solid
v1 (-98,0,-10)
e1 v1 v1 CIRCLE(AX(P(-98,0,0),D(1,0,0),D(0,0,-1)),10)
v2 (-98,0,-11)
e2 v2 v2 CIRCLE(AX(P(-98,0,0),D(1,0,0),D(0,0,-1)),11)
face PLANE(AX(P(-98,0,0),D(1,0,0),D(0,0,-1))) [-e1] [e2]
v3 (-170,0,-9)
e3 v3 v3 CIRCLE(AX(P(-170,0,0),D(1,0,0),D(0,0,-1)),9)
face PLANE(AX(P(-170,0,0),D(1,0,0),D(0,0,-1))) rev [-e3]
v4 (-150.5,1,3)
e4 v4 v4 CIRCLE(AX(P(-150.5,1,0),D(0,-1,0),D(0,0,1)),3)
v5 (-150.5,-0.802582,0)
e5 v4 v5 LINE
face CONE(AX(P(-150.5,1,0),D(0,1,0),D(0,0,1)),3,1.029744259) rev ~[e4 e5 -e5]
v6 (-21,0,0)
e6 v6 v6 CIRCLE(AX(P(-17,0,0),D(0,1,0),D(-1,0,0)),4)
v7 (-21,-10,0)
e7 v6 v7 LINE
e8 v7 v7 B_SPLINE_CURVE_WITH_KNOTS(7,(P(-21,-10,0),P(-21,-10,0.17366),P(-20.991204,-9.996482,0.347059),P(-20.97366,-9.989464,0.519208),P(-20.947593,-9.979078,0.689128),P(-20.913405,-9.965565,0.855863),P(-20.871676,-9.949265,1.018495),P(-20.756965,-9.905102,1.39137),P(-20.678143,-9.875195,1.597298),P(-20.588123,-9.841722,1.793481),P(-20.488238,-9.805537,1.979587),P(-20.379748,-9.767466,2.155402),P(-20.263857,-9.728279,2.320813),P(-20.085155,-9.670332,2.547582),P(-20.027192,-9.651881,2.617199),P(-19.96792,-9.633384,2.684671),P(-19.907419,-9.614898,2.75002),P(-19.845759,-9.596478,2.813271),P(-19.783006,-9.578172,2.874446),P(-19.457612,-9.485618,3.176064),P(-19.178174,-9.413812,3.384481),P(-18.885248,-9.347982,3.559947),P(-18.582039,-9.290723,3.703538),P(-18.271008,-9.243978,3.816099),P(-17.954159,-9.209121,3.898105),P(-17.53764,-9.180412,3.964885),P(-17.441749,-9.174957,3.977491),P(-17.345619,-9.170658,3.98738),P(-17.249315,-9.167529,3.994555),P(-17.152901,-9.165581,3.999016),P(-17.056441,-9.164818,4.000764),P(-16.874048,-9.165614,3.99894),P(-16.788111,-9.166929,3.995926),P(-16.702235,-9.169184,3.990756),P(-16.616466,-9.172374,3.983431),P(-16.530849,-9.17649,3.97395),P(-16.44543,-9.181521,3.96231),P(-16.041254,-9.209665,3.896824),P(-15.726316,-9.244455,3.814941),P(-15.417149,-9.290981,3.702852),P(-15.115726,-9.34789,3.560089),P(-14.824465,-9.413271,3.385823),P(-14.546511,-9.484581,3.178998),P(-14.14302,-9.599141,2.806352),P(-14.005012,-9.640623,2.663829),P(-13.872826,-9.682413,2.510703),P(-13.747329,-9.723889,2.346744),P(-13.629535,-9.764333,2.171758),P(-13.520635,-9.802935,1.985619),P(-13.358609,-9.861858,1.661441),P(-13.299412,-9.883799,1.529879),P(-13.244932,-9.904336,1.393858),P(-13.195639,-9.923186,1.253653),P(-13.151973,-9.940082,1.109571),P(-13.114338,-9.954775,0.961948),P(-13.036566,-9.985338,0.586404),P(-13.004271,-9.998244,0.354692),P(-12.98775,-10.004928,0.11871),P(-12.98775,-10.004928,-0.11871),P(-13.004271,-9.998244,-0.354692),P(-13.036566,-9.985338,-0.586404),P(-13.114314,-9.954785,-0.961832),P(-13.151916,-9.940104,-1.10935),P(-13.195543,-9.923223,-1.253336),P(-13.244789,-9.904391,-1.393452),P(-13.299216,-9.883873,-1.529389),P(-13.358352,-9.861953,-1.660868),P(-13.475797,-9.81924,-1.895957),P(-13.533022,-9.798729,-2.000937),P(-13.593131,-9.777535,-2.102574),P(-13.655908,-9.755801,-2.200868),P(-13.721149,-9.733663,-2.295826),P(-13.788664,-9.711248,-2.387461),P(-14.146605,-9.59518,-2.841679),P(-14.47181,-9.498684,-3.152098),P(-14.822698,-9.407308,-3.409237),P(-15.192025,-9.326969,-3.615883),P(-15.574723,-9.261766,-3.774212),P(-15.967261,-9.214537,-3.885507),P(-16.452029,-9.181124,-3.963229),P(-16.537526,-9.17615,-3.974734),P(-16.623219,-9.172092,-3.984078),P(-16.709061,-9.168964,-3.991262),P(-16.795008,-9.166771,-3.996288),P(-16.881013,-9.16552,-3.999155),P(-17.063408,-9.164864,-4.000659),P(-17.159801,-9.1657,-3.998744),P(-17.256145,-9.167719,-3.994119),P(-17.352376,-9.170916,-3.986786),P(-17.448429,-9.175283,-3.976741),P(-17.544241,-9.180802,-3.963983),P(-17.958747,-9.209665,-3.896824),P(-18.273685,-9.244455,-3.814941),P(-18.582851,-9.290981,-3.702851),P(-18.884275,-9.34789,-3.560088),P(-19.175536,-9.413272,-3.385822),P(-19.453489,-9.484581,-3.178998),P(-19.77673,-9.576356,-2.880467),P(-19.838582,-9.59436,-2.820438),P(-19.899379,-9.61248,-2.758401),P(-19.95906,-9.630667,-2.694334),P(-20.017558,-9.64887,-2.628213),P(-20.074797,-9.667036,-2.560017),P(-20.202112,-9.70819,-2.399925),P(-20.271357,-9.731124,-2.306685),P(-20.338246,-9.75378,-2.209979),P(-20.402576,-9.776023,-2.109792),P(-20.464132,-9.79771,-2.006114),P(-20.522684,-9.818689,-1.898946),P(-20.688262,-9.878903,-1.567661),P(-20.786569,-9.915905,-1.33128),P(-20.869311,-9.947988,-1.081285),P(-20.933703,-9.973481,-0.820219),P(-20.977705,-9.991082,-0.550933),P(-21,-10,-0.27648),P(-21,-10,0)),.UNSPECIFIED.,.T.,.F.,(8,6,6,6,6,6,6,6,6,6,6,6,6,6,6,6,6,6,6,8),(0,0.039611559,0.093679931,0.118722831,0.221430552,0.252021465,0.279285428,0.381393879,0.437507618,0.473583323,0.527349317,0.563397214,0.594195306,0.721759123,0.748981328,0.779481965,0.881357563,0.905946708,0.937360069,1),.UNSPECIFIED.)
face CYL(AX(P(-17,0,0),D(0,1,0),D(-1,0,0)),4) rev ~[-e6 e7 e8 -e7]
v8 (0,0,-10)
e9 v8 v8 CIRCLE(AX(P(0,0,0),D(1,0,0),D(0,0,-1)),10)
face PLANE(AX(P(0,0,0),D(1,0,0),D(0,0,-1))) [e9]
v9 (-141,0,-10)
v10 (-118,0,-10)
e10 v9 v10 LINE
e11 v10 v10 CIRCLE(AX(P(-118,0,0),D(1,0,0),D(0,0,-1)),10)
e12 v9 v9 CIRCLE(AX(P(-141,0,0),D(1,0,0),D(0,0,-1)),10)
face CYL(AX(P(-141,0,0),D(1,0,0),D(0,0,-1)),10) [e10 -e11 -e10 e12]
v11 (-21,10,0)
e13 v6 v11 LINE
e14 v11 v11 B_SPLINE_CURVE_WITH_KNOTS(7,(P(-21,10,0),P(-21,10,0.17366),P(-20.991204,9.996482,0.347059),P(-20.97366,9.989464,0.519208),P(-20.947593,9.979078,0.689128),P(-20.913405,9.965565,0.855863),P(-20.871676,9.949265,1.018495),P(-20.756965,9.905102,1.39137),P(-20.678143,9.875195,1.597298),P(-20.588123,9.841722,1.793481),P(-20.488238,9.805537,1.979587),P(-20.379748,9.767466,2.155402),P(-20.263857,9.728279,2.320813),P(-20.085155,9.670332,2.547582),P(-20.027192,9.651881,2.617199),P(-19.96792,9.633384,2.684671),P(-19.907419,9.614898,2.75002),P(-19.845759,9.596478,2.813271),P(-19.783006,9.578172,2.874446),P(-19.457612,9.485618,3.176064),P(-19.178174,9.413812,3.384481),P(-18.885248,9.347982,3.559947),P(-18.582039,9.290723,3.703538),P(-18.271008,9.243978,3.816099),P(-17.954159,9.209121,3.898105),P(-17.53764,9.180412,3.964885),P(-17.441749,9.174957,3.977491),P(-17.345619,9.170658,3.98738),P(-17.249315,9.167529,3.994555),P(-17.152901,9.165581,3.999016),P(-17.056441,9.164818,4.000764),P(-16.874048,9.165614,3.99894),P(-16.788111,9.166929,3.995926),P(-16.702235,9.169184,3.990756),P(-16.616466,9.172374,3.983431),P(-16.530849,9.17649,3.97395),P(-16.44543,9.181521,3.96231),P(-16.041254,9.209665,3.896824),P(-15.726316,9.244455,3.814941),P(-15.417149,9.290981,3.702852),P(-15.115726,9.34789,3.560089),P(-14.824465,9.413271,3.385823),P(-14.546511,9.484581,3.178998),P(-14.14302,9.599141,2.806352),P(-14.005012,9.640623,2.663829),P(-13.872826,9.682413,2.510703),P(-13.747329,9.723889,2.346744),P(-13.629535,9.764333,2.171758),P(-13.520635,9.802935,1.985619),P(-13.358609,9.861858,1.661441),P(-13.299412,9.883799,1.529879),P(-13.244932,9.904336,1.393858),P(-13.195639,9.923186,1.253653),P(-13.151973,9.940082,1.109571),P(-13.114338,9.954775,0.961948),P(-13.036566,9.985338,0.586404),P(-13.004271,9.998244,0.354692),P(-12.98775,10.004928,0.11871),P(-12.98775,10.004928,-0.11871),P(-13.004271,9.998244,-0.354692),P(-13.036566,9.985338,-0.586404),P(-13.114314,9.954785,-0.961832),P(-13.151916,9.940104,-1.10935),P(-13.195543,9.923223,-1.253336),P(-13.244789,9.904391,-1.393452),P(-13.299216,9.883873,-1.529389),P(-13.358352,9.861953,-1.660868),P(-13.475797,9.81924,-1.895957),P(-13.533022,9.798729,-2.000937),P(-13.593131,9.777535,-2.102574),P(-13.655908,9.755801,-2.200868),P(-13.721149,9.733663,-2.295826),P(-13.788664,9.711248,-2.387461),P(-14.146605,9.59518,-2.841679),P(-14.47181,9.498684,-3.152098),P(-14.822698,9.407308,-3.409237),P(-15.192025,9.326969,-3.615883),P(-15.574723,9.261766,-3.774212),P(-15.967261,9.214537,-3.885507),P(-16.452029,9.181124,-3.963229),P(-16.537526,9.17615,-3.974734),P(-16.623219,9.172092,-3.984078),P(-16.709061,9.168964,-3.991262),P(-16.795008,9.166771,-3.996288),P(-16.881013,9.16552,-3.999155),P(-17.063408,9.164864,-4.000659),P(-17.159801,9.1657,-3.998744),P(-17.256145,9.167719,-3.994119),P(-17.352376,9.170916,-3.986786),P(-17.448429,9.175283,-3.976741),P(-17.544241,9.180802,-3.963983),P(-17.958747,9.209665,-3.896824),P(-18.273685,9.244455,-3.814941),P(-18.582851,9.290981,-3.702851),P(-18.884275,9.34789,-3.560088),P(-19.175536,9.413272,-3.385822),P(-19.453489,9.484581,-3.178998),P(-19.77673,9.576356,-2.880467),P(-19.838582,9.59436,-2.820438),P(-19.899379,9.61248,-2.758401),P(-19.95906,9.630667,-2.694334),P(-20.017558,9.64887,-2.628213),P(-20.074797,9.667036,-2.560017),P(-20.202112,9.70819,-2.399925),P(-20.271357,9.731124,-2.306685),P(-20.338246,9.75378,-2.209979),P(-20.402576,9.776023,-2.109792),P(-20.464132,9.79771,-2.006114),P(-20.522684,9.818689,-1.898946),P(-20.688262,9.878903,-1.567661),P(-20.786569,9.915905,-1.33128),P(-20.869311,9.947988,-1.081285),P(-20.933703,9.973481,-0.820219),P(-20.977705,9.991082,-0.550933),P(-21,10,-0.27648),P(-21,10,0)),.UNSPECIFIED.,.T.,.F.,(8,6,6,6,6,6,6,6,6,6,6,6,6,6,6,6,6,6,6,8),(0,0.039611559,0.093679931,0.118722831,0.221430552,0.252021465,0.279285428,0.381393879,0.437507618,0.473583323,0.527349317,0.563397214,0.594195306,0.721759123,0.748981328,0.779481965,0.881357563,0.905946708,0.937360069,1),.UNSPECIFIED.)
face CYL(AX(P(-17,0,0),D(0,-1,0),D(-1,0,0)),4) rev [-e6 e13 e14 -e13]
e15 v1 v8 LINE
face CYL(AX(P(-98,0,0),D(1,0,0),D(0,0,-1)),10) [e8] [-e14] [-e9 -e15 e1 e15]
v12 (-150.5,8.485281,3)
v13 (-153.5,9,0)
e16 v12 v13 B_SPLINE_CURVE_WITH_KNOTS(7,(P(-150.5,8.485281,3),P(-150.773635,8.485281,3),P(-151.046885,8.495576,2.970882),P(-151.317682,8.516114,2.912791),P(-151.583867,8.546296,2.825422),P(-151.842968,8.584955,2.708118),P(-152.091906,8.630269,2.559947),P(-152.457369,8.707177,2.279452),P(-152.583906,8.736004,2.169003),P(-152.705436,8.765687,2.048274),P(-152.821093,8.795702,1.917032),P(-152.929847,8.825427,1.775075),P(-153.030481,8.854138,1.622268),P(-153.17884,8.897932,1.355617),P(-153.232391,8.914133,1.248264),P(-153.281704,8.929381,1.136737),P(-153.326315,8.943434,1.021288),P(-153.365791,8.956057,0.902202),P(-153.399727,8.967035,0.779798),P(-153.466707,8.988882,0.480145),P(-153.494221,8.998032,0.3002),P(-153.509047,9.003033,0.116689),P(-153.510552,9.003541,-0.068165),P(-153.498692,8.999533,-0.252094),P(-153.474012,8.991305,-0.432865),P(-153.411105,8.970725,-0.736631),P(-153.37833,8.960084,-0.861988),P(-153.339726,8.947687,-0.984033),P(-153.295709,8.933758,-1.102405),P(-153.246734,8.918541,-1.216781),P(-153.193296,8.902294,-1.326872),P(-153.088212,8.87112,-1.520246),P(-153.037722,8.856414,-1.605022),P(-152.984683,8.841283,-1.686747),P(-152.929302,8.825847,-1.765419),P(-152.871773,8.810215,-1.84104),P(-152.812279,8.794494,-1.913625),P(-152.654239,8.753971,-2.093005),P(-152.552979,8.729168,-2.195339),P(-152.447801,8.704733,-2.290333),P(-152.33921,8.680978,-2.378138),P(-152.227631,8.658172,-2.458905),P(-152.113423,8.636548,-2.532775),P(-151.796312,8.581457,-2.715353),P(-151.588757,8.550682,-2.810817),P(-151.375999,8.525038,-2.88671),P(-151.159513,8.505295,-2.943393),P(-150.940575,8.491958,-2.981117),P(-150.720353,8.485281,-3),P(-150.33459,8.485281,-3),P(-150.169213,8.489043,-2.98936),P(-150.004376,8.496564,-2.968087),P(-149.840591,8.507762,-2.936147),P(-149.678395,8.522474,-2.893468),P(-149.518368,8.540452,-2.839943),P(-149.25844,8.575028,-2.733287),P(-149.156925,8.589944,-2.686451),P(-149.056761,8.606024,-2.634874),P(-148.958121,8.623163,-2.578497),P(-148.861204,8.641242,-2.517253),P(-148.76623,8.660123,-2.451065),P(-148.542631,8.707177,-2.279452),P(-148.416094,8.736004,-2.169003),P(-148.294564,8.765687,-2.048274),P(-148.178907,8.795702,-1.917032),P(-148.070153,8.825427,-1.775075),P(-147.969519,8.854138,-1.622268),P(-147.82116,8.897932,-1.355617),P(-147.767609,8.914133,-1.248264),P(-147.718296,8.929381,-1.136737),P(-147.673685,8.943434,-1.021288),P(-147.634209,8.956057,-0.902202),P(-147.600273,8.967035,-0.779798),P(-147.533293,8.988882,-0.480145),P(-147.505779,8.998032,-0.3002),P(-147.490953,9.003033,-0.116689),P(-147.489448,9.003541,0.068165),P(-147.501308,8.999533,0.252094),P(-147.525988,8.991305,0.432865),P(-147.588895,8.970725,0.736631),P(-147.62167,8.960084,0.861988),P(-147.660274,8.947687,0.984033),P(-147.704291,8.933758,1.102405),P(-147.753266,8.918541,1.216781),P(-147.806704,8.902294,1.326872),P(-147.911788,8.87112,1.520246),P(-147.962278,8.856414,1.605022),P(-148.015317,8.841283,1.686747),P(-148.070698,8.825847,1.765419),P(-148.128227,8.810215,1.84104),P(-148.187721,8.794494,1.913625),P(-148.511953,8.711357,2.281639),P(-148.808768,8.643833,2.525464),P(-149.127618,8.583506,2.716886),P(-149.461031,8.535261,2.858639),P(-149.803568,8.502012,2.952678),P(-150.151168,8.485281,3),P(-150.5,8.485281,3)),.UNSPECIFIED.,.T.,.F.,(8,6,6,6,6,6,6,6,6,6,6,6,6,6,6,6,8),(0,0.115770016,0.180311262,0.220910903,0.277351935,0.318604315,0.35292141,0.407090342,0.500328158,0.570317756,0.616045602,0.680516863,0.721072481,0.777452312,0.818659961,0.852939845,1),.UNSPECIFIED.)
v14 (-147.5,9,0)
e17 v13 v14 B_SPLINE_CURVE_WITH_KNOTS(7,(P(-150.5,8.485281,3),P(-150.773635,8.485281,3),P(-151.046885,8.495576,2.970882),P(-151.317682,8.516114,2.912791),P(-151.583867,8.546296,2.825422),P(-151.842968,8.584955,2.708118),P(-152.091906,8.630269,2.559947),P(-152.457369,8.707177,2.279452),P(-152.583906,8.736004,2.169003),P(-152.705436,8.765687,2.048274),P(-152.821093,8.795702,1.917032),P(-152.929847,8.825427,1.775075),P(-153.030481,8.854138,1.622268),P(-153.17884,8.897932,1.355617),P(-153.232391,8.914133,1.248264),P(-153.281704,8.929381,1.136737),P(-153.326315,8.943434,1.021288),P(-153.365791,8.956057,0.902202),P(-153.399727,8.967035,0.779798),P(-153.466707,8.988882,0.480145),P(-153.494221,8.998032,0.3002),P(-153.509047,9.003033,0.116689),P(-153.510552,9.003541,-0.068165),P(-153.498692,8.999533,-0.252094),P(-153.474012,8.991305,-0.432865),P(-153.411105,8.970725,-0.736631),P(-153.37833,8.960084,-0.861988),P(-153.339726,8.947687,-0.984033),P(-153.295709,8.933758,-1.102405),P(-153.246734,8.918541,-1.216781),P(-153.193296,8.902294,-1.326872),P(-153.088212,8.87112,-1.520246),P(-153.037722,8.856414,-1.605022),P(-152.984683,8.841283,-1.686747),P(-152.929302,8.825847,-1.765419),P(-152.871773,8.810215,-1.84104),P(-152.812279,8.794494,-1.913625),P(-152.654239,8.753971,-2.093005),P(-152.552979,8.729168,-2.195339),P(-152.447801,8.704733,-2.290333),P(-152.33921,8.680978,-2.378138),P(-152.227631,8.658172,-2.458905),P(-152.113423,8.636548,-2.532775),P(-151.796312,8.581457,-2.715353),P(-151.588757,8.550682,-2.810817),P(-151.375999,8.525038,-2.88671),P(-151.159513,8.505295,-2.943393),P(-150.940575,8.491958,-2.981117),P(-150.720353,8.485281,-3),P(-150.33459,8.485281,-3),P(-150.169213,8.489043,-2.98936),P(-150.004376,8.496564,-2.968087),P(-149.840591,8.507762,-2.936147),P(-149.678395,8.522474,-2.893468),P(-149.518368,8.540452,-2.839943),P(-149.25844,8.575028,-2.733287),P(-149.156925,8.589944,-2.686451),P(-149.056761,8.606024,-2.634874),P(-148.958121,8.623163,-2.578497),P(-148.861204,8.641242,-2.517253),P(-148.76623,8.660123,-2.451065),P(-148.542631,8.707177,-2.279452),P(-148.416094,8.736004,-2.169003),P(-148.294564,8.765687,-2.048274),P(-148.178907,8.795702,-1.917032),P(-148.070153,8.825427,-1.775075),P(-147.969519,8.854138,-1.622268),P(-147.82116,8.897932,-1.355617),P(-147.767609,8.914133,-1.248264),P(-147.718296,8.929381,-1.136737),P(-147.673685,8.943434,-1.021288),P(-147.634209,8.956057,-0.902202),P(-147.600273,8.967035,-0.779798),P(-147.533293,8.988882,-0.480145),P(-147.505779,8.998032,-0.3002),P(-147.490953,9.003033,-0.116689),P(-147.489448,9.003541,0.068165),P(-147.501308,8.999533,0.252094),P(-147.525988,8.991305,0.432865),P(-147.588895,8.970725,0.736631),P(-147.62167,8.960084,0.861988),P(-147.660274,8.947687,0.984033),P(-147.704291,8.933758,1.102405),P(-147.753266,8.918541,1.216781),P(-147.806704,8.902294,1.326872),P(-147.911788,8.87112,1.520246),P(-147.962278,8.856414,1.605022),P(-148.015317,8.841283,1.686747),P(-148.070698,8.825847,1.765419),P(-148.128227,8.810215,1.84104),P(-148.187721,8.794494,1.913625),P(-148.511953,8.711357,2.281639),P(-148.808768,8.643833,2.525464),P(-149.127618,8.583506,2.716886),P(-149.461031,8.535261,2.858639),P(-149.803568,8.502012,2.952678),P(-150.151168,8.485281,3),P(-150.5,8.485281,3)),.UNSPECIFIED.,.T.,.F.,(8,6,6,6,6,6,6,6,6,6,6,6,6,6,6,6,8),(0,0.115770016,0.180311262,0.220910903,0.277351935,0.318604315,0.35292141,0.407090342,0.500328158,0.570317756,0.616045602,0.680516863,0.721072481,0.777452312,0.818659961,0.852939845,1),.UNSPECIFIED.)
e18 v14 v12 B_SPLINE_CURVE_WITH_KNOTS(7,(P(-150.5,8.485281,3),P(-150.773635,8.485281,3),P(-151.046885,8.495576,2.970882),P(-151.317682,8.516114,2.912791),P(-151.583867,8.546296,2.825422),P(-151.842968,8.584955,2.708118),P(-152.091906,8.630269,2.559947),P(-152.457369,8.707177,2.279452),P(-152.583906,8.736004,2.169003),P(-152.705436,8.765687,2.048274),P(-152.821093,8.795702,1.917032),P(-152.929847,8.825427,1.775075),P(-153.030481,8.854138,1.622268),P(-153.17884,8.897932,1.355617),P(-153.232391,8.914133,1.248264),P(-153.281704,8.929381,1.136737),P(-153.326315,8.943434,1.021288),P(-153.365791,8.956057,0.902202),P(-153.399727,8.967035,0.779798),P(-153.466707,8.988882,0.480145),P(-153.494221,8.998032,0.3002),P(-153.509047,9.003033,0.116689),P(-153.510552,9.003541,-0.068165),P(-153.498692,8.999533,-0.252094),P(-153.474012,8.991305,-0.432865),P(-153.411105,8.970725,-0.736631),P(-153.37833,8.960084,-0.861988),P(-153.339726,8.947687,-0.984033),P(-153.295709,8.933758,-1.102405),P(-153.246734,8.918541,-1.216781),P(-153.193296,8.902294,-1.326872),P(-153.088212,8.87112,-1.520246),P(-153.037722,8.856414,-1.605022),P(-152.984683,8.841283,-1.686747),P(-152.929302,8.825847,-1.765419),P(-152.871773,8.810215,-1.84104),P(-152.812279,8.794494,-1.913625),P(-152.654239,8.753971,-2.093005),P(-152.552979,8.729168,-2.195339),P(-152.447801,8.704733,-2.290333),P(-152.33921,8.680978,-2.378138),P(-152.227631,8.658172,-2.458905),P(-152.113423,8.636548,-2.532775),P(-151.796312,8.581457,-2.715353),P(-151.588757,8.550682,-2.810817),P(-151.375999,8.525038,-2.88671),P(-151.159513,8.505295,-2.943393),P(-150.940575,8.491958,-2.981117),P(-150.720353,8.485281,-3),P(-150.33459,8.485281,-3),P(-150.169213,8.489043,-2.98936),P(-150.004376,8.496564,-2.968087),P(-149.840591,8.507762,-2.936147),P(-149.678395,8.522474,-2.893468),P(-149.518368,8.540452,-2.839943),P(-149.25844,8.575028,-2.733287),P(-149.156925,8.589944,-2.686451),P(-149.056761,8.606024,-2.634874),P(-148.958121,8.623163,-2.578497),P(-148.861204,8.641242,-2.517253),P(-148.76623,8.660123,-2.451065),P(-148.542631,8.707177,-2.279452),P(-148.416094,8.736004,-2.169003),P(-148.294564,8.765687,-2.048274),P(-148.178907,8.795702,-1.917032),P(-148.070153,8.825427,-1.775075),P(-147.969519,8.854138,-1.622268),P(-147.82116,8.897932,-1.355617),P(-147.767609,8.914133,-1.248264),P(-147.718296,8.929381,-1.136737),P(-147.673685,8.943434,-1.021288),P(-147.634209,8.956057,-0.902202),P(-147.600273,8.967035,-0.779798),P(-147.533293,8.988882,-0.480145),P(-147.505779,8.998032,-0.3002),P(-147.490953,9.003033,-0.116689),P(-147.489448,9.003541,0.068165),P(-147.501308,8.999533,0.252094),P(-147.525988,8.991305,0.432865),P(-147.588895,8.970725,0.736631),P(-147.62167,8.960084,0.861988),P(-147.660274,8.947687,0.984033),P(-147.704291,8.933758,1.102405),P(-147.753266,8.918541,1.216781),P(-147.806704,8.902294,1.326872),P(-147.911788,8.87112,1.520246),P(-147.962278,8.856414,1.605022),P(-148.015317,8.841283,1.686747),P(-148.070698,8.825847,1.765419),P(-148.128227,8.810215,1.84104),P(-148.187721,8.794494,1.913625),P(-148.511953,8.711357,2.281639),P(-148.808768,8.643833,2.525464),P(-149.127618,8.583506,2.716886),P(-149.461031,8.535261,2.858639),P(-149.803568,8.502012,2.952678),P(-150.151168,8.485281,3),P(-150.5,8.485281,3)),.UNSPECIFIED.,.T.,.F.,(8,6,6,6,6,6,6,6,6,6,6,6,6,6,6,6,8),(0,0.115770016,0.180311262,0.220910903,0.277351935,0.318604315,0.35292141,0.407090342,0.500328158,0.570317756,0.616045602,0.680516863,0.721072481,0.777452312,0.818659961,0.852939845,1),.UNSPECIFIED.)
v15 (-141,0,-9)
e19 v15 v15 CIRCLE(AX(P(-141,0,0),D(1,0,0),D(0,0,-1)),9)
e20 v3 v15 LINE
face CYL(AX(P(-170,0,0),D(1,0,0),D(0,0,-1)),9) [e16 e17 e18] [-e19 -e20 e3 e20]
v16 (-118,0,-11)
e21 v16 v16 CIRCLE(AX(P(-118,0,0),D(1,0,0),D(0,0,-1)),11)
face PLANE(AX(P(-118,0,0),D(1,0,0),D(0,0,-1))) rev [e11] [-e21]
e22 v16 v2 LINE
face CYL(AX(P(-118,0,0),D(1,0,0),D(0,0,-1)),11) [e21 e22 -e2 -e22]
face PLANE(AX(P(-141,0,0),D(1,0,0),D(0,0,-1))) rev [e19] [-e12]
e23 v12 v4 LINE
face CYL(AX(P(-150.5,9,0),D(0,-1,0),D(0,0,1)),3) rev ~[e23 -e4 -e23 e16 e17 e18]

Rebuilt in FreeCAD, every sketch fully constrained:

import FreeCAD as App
import Part
import Sketcher


def add_polygon(sketch, points):
    """Adds a closed chain of lines whose ends are joined by coincident constraints."""
    first, n = sketch.GeometryCount, len(points)
    for a, b in zip(points, points[1:] + points[:1]):
        sketch.addGeometry(Part.LineSegment(App.Vector(*a, 0), App.Vector(*b, 0)), False)
    for i in range(n):
        sketch.addConstraint(Sketcher.Constraint("Coincident", first + i, 2, first + (i + 1) % n, 1))

doc = App.newDocument("Part")
body = doc.addObject("PartDesign::Body", "Body")

# Sketch on XZ plane
sketch1 = doc.addObject("Sketcher::SketchObject", "Sketch")
body.addObject(sketch1)
sketch1.AttachmentSupport = (doc.XZ_Plane, [""])
sketch1.MapMode = "FlatFace"
add_polygon(sketch1, [(-170, -9), (-170, 0), (0, 0), (0, -10), (-98, -10), (-98, -11), (-118, -11), (-118, -10), (-141, -10), (-141, -9)])  # lines 0-9
sketch1.addConstraint([
    Sketcher.Constraint("Vertical", 0),
    Sketcher.Constraint("Horizontal", 1),
    Sketcher.Constraint("Vertical", 2),
    Sketcher.Constraint("Horizontal", 3),
    Sketcher.Constraint("Vertical", 4),
    Sketcher.Constraint("Horizontal", 5),
    Sketcher.Constraint("Vertical", 6),
    Sketcher.Constraint("Horizontal", 7),
    Sketcher.Constraint("Vertical", 8),
    Sketcher.Constraint("Horizontal", 9),
    Sketcher.Constraint("Coincident", 1, 2, -1, 1),
    Sketcher.Constraint("Horizontal", 3, 2, 6, 2),
    Sketcher.Constraint("Equal", 6, 8),
    Sketcher.Constraint("DistanceX", 1, 1, 1, 2, 170.0),
    Sketcher.Constraint("DistanceX", 5, 2, 5, 1, 20.0),
    Sketcher.Constraint("DistanceX", 7, 2, 7, 1, 23.0),
    Sketcher.Constraint("DistanceX", 9, 2, 9, 1, 29.0),
    Sketcher.Constraint("DistanceY", 0, 1, 0, 2, 9.0),
    Sketcher.Constraint("DistanceY", 2, 2, 2, 1, 10.0),
])
revolution = doc.addObject("PartDesign::Revolution", "Revolution")
body.addObject(revolution)
revolution.Profile = sketch1
revolution.ReferenceAxis = (sketch1, ["H_Axis"])
revolution.Angle = 360

# Sketch on XZ plane
sketch2 = doc.addObject("Sketcher::SketchObject", "Sketch001")
body.addObject(sketch2)
sketch2.AttachmentSupport = (doc.XZ_Plane, [""])
sketch2.MapMode = "FlatFace"
sketch2.addGeometry(Part.Circle(App.Vector(-17, 0, 0), App.Vector(0, 0, 1), 4), False)
sketch2.addConstraint([
    Sketcher.Constraint("PointOnObject", 0, 3, -1),
    Sketcher.Constraint("Diameter", 0, 8.0),
    Sketcher.Constraint("DistanceX", 0, 3, -1, 1, 17.0),
])
pocket1 = doc.addObject("PartDesign::Pocket", "Pocket")
body.addObject(pocket1)
pocket1.Profile = sketch2
pocket1.Type = "ThroughAll"
pocket1.Midplane = True

# Sketch on XZ plane
sketch3 = doc.addObject("Sketcher::SketchObject", "Sketch002")
body.addObject(sketch3)
sketch3.AttachmentSupport = (doc.XZ_Plane, [""])
sketch3.MapMode = "FlatFace"
sketch3.AttachmentOffset = App.Placement(App.Vector(0, 0, -9), App.Rotation())
sketch3.addGeometry(Part.Circle(App.Vector(-150.5, 0, 0), App.Vector(0, 0, 1), 3), False)
sketch3.addConstraint([
    Sketcher.Constraint("PointOnObject", 0, 3, -1),
    Sketcher.Constraint("Diameter", 0, 6.0),
    Sketcher.Constraint("DistanceX", 0, 3, -1, 1, 150.5),
])
doc.recompute()
hole = doc.addObject("PartDesign::Hole", "Hole")
body.addObject(hole)
hole.Profile = sketch3
hole.ThreadType = "None"
hole.Diameter = 6
hole.DepthType = "Dimension"
hole.Depth = 8
hole.DrillPoint = "Angled"
hole.DrillPointAngle = 118
hole.Reversed = True

doc.recompute()
